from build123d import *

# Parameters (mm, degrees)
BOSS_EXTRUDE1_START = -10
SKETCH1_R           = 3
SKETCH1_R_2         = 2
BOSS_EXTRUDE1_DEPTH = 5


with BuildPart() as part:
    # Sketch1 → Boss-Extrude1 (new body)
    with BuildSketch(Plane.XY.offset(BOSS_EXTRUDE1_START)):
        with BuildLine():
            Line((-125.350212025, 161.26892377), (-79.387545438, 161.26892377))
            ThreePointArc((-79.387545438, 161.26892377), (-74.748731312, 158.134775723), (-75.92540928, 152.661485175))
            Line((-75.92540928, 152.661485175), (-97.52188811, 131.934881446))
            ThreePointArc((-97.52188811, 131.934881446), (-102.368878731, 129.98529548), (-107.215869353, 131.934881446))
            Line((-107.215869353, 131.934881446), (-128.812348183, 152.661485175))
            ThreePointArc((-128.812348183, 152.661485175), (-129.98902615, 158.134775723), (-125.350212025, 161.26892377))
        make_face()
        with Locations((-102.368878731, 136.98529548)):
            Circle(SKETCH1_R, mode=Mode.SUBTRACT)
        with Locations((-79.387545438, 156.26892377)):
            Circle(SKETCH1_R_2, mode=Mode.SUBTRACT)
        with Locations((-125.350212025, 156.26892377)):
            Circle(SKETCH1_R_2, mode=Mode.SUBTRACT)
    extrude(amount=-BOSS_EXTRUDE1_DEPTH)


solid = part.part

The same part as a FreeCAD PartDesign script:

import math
import FreeCAD as App
import Part
import Sketcher

doc = App.newDocument("Part")
body = doc.addObject("PartDesign::Body", "Body")

sketch1 = body.newObject("Sketcher::SketchObject", "Sketch")
sketch1.AttachmentSupport = (doc.getObject("XY_Plane"), [""])
sketch1.MapMode = "FlatFace"
sketch1.AttachmentOffset = App.Placement(App.Vector(0, 0, -10), App.Rotation())
sketch1.addGeometry(Part.LineSegment(App.Vector(-79.4, 161.3, 0), App.Vector(-125.4, 161.3, 0)), False)
sketch1.addGeometry(Part.ArcOfCircle(Part.Circle(App.Vector(-125.4, 156.3, 0), App.Vector(0, 0, 1), 5), math.radians(90), math.radians(226)), False)
sketch1.addGeometry(Part.LineSegment(App.Vector(-128.8, 152.7, 0), App.Vector(-107.2, 131.9, 0)), False)
sketch1.addGeometry(Part.ArcOfCircle(Part.Circle(App.Vector(-102.4, 137, 0), App.Vector(0, 0, 1), 7), math.radians(-134), math.radians(-46)), False)
sketch1.addGeometry(Part.LineSegment(App.Vector(-97.5, 131.9, 0), App.Vector(-75.9, 152.7, 0)), False)
sketch1.addGeometry(Part.ArcOfCircle(Part.Circle(App.Vector(-79.4, 156.3, 0), App.Vector(0, 0, 1), 5), math.radians(-46), math.radians(90)), False)
sketch1.addGeometry(Part.Circle(App.Vector(-102.4, 137, 0), App.Vector(0, 0, 1), 3), False)
sketch1.addGeometry(Part.Circle(App.Vector(-79.4, 156.3, 0), App.Vector(0, 0, 1), 2), False)
sketch1.addGeometry(Part.Circle(App.Vector(-125.4, 156.3, 0), App.Vector(0, 0, 1), 2), False)
sketch1.addConstraint(Sketcher.Constraint("Tangent", 0, 2, 1, 1))
sketch1.addConstraint(Sketcher.Constraint("Tangent", 1, 2, 2, 1))
sketch1.addConstraint(Sketcher.Constraint("Tangent", 2, 2, 3, 1))
sketch1.addConstraint(Sketcher.Constraint("Tangent", 3, 2, 4, 1))
sketch1.addConstraint(Sketcher.Constraint("Tangent", 4, 2, 5, 1))
sketch1.addConstraint(Sketcher.Constraint("Tangent", 5, 2, 0, 1))
sketch1.addConstraint(Sketcher.Constraint("Horizontal", 0))
sketch1.addConstraint(Sketcher.Constraint("Coincident", 6, 3, 3, 3))
sketch1.addConstraint(Sketcher.Constraint("Coincident", 7, 3, 5, 3))
sketch1.addConstraint(Sketcher.Constraint("Coincident", 8, 3, 1, 3))
sketch1.addConstraint(Sketcher.Constraint("Equal", 1, 5))
sketch1.addConstraint(Sketcher.Constraint("Equal", 7, 8))
sketch1.addConstraint(Sketcher.Constraint("Horizontal", 2, 2, 3, 2))
sketch1.addConstraint(Sketcher.Constraint("Diameter", 6, 6.0))
sketch1.addConstraint(Sketcher.Constraint("Diameter", 7, 4.0))
sketch1.addConstraint(Sketcher.Constraint("Radius", 1, 5.0))
sketch1.addConstraint(Sketcher.Constraint("Radius", 3, 7.0))
sketch1.addConstraint(Sketcher.Constraint("Distance", 2, 29.933259))
sketch1.addConstraint(Sketcher.Constraint("DistanceX", 0, 2, 0, 1, 45.962667))
sketch1.addConstraint(Sketcher.Constraint("DistanceX", 3, 3, -1, 1, 102.368879))
sketch1.addConstraint(Sketcher.Constraint("DistanceY", -1, 1, 2, 2, 131.934881))
pad1 = body.newObject("PartDesign::Pad", "Pad")
pad1.Profile = sketch1
pad1.Length = 5
pad1.Reversed = True

doc.recompute()
